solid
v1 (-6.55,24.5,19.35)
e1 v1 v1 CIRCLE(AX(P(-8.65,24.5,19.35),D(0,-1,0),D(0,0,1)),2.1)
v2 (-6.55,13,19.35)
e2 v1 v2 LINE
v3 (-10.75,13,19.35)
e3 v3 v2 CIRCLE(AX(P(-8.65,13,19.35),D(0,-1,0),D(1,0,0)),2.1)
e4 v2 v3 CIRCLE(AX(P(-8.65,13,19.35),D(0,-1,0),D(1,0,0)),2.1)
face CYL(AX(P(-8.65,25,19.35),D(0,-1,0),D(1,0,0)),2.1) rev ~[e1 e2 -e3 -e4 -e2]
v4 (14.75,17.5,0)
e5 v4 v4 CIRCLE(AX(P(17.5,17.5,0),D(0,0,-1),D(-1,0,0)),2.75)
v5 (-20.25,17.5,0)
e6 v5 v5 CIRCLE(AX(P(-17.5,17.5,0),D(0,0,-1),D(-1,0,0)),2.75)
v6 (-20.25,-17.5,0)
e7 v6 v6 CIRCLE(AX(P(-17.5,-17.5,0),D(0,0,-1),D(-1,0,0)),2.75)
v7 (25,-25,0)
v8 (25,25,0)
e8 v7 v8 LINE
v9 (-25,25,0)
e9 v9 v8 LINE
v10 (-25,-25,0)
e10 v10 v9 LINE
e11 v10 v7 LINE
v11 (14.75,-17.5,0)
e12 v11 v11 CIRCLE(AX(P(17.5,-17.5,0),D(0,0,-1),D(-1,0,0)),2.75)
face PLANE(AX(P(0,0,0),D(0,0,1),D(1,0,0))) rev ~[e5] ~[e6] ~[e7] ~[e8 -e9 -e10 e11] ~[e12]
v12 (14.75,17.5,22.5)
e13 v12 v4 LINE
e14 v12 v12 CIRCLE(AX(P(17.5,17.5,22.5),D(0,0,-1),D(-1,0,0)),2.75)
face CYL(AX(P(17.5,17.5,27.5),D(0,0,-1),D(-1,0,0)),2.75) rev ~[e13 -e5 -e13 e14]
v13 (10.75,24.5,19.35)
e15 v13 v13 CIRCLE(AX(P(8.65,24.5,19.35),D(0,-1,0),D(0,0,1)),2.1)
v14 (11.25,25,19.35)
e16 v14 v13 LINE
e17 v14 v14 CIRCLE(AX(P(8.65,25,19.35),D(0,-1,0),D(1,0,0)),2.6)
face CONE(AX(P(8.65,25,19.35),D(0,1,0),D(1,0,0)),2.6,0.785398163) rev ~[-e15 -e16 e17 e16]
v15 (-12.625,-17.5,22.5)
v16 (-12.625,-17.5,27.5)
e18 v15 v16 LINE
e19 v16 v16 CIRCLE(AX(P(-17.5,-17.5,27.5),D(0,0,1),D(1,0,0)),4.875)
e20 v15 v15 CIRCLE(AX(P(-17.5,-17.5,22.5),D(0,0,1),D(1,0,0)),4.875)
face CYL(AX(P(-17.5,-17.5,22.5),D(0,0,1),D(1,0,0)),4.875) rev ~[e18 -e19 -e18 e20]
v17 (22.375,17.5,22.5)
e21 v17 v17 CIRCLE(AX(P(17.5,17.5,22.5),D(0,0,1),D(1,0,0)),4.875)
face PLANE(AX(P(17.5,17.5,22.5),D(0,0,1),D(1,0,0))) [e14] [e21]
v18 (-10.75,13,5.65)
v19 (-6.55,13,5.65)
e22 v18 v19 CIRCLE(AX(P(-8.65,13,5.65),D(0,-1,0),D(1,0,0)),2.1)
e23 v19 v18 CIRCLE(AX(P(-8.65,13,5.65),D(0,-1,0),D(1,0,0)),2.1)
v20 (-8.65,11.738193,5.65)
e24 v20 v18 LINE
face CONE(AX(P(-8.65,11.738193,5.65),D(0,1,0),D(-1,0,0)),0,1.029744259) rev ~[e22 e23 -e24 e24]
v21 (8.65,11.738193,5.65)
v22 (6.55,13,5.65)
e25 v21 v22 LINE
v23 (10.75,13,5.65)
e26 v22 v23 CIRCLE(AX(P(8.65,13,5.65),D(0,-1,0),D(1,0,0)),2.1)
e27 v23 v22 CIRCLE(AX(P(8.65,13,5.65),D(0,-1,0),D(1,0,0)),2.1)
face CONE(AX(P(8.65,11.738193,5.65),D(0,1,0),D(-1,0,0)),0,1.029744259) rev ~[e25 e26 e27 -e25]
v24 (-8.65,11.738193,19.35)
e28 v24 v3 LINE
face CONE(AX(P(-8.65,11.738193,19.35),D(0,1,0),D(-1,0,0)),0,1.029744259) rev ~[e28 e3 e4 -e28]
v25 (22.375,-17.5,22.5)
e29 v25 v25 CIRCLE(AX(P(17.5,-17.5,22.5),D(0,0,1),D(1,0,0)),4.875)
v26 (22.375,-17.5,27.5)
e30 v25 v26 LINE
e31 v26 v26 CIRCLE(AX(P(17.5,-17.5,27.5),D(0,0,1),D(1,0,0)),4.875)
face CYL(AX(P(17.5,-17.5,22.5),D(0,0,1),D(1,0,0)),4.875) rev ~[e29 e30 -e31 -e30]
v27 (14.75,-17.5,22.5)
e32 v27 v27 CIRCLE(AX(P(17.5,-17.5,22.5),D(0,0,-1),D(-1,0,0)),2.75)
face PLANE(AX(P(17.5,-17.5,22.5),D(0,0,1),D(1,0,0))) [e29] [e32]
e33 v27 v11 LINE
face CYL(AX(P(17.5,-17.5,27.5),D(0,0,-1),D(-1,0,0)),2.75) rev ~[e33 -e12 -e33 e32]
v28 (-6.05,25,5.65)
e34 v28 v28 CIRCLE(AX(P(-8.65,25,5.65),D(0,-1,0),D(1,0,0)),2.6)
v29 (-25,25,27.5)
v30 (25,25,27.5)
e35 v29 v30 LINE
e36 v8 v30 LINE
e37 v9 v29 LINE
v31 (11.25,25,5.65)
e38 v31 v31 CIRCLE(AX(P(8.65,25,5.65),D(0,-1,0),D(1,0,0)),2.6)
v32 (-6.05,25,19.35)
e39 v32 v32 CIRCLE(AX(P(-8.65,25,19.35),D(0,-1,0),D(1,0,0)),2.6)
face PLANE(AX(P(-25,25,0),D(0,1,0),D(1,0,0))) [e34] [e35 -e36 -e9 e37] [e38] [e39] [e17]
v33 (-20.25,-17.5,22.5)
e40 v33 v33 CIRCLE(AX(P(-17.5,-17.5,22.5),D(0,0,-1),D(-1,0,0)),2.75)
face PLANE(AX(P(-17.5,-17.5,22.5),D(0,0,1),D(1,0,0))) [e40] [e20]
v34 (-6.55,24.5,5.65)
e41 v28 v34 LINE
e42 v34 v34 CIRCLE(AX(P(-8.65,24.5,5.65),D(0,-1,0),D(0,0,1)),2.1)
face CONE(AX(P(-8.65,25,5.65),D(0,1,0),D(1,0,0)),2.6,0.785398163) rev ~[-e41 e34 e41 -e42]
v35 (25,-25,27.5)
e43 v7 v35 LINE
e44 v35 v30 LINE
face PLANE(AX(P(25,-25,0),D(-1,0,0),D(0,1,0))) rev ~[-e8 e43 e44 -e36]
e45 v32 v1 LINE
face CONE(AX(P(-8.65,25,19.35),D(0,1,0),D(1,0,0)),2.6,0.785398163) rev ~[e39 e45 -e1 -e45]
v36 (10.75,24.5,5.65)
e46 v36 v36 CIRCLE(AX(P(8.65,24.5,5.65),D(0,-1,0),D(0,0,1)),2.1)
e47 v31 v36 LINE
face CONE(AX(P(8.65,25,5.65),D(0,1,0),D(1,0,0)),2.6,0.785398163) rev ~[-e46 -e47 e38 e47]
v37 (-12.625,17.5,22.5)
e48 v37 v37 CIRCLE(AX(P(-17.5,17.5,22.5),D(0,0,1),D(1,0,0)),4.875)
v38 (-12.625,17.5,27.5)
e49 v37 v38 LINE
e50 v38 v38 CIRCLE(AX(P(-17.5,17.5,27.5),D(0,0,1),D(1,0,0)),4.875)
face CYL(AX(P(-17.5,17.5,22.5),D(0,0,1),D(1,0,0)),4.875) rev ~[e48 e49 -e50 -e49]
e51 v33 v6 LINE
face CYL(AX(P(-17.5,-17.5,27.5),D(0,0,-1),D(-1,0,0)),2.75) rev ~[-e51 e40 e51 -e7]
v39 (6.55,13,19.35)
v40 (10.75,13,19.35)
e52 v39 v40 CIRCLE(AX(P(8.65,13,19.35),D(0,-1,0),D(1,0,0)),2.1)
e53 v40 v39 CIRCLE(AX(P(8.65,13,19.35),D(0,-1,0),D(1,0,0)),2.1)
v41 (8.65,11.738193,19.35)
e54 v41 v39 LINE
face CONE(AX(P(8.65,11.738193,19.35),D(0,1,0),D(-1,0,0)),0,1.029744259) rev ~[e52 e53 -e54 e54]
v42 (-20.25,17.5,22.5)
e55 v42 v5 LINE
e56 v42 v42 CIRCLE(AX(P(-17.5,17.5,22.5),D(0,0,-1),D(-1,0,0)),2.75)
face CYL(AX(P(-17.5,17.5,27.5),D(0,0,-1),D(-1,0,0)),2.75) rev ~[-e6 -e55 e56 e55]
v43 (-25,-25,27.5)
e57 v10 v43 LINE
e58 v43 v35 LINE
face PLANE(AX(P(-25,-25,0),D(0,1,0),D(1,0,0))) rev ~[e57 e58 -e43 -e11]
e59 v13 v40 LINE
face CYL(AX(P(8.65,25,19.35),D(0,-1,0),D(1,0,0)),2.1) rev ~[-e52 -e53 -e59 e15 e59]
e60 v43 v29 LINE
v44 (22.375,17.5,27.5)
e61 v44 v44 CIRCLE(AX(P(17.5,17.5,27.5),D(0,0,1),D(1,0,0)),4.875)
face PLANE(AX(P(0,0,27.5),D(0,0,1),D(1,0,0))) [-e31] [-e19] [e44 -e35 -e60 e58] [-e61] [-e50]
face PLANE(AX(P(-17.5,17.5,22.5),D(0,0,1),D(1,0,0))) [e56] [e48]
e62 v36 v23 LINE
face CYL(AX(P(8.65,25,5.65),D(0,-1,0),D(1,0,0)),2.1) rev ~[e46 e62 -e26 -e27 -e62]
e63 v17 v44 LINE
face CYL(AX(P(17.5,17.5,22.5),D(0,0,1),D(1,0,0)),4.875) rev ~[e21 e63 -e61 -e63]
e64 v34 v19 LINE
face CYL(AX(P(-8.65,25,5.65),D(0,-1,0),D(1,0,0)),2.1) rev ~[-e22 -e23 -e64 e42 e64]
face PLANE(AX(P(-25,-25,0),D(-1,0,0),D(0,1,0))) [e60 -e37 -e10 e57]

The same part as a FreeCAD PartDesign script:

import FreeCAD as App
import Part
import Sketcher

V = App.Vector

doc = App.newDocument("Part")
body = doc.addObject("PartDesign::Body", "Body")

# Sketch on XY plane
sketch1 = body.newObject("Sketcher::SketchObject", "Sketch")
sketch1.AttachmentSupport = (doc.getObject("XY_Plane"), [""])
sketch1.MapMode = "FlatFace"
sketch1.addGeometry([
    Part.LineSegment(V(-25, 25, 0), V(-25, -25, 0)),
    Part.LineSegment(V(-25, -25, 0), V(25, -25, 0)),
    Part.LineSegment(V(25, -25, 0), V(25, 25, 0)),
    Part.LineSegment(V(25, 25, 0), V(-25, 25, 0)),
], False)
sketch1.addConstraint([
    Sketcher.Constraint("Coincident", 0, 2, 1, 1),
    Sketcher.Constraint("Coincident", 1, 2, 2, 1),
    Sketcher.Constraint("Coincident", 2, 2, 3, 1),
    Sketcher.Constraint("Coincident", 3, 2, 0, 1),
    Sketcher.Constraint("Vertical", 0),
    Sketcher.Constraint("Horizontal", 1),
    Sketcher.Constraint("Vertical", 2),
    Sketcher.Constraint("Horizontal", 3),
    Sketcher.Constraint("Symmetric", 0, 2, 2, 2, -1, 1),
    Sketcher.Constraint("Equal", 3, 0),
    Sketcher.Constraint("DistanceX", 1, 1, 1, 2, 50.0),
])
pad1 = body.newObject("PartDesign::Pad", "Pad")
pad1.Profile = sketch1
pad1.Length = 27.5

# Sketch on XY plane
sketch2 = body.newObject("Sketcher::SketchObject", "Sketch001")
sketch2.AttachmentSupport = (doc.getObject("XY_Plane"), [""])
sketch2.MapMode = "FlatFace"
sketch2.AttachmentOffset = App.Placement(V(0, 0, 27.5), App.Rotation())
sketch2.addGeometry([
    Part.Circle(V(-17.5, 17.5, 0), V(0, 0, 1), 2.8),
    Part.Circle(V(17.5, 17.5, 0), V(0, 0, 1), 2.8),
    Part.Circle(V(-17.5, -17.5, 0), V(0, 0, 1), 2.8),
    Part.Circle(V(17.5, -17.5, 0), V(0, 0, 1), 2.8),
], False)
sketch2.addConstraint([
    Sketcher.Constraint("Equal", 0, 1),
    Sketcher.Constraint("Equal", 1, 2),
    Sketcher.Constraint("Equal", 2, 3),
    Sketcher.Constraint("Symmetric", 1, 3, 2, 3, -1, 1),
    Sketcher.Constraint("Symmetric", 0, 3, 3, 3, -1, 1),
    Sketcher.Constraint("Symmetric", 0, 3, 1, 3, -2),
    Sketcher.Constraint("Diameter", 0, 5.5),
    Sketcher.Constraint("DistanceX", 0, 3, 1, 3, 35.0),
    Sketcher.Constraint("DistanceY", 2, 3, 0, 3, 35.0),
])
doc.recompute()
hole = body.newObject("PartDesign::Hole", "Hole")
hole.Profile = sketch2
hole.ThreadType = "None"
hole.Diameter = 5.5
hole.DepthType = "ThroughAll"
hole.HoleCutType = "Counterbore"
hole.HoleCutDiameter = 9.75
hole.HoleCutDepth = 5

# Sketch on XZ plane
sketch3 = body.newObject("Sketcher::SketchObject", "Sketch002")
sketch3.AttachmentSupport = (doc.getObject("XZ_Plane"), [""])
sketch3.MapMode = "FlatFace"
sketch3.AttachmentOffset = App.Placement(V(0, 0, -25), App.Rotation())
sketch3.addGeometry([
    Part.Circle(V(8.7, 19.4, 0), V(0, 0, 1), 2.1),
    Part.Circle(V(-8.7, 19.4, 0), V(0, 0, 1), 2.1),
    Part.Circle(V(-8.7, 5.7, 0), V(0, 0, 1), 2.1),
    Part.Circle(V(8.7, 5.7, 0), V(0, 0, 1), 2.1),
], False)
sketch3.addConstraint([
    Sketcher.Constraint("Equal", 0, 1),
    Sketcher.Constraint("Equal", 1, 2),
    Sketcher.Constraint("Equal", 2, 3),
    Sketcher.Constraint("Symmetric", 0, 3, 1, 3, -2),
    Sketcher.Constraint("Symmetric", 2, 3, 3, 3, -2),
    Sketcher.Constraint("Vertical", 1, 3, 2, 3),
    Sketcher.Constraint("Diameter", 0, 4.2),
    Sketcher.Constraint("DistanceX", 1, 3, 0, 3, 17.3),
    Sketcher.Constraint("DistanceY", 2, 3, 1, 3, 13.7),
    Sketcher.Constraint("DistanceY", -1, 1, 0, 3, 19.35),
])
doc.recompute()
hole2 = body.newObject("PartDesign::Hole", "Hole001")
hole2.Profile = sketch3
hole2.ThreadType = "None"
hole2.Diameter = 4.2
hole2.DepthType = "Dimension"
hole2.Depth = 12
hole2.DrillPoint = "Angled"
hole2.DrillPointAngle = 118
hole2.HoleCutType = "Countersink"
hole2.HoleCutDiameter = 5.2
hole2.HoleCutCountersinkAngle = 90
hole2.Reversed = True

doc.recompute()
